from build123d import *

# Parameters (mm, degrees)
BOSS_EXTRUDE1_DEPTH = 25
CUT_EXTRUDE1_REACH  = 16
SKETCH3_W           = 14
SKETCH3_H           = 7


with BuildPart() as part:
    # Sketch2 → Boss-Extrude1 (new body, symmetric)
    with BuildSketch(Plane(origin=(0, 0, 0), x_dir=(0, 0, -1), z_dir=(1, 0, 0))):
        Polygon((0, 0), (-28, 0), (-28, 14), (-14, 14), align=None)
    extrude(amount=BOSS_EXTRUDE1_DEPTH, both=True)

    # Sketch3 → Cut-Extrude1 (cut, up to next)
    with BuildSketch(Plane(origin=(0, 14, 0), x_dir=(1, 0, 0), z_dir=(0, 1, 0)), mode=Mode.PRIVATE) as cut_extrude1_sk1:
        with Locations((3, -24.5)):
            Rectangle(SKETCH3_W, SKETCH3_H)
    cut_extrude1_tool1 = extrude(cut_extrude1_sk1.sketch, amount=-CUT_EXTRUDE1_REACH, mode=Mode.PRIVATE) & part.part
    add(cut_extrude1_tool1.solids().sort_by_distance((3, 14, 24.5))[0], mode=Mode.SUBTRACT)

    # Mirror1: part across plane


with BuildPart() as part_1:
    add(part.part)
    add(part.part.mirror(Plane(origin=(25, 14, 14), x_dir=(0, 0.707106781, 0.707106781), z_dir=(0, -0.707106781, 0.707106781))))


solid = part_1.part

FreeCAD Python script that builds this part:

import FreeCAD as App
import Part
import Sketcher

V = App.Vector
Q = App.Units.Quantity


def add_polygon(sketch, points):
    """Adds a closed chain of lines whose ends are joined by coincident constraints."""
    first, n = sketch.GeometryCount, len(points)
    for a, b in zip(points, points[1:] + points[:1]):
        sketch.addGeometry(Part.LineSegment(App.Vector(*a, 0), App.Vector(*b, 0)), False)
    for i in range(n):
        sketch.addConstraint(Sketcher.Constraint("Coincident", first + i, 2, first + (i + 1) % n, 1))

doc = App.newDocument("Part")
params = doc.addObject("Spreadsheet::Sheet", "Params")
for row, (alias, value) in enumerate([
    ("sketch1_width", "14 mm"),
    ("sketch1_height", "28 mm"),
    ("pad1_length", "50 mm"),
    ("sketch2_width", "14 mm"),
    ("sketch2_height", "7 mm"),
], start=1):
    params.set(f"A{row}", alias)
    params.set(f"B{row}", "=" + value)
    params.setAlias(f"B{row}", alias)

body = doc.addObject("PartDesign::Body", "Body")

sketch1 = doc.addObject("Sketcher::SketchObject", "Sketch")
body.addObject(sketch1)
sketch1.AttachmentSupport = (doc.YZ_Plane, [""])
sketch1.MapMode = "FlatFace"
add_polygon(sketch1, [(0, 28), (0, 0), (14, 14), (14, 28)])
sketch1.addConstraint([
    Sketcher.Constraint("Vertical", 0),
    Sketcher.Constraint("Vertical", 2),
    Sketcher.Constraint("Horizontal", 3),
    Sketcher.Constraint("Coincident", 0, 2, -1, 1),
    Sketcher.Constraint("Equal", 3, 2),
    Sketcher.Constraint("DistanceX", 3, 2, 3, 1, Q("14 mm")),
    Sketcher.Constraint("DistanceY", 0, 2, 0, 1, Q("28 mm")),
])
sketch1.setExpression("Constraints[9]", "Params.sketch1_width")
sketch1.setExpression("Constraints[10]", "Params.sketch1_height")
pad1 = doc.addObject("PartDesign::Pad", "Pad")
body.addObject(pad1)
pad1.Profile = sketch1
pad1.setExpression("Length", "Params.pad1_length")
pad1.Midplane = True

sketch2 = doc.addObject("Sketcher::SketchObject", "Sketch001")
body.addObject(sketch2)
sketch2.AttachmentSupport = (doc.XZ_Plane, [""])
sketch2.MapMode = "FlatFace"
sketch2.AttachmentOffset = App.Placement(V(0, 0, -14), App.Rotation())
add_polygon(sketch2, [(-4, 21), (-4, 28), (10, 28), (10, 21)])
sketch2.addConstraint([
    Sketcher.Constraint("Vertical", 0),
    Sketcher.Constraint("Horizontal", 1),
    Sketcher.Constraint("Vertical", 2),
    Sketcher.Constraint("Horizontal", 3),
    Sketcher.Constraint("DistanceX", 1, 1, 1, 2, Q("14 mm")),
    Sketcher.Constraint("DistanceY", 0, 1, 0, 2, Q("7 mm")),
    Sketcher.Constraint("DistanceX", 0, 2, -1, 1, Q("4 mm")),
    Sketcher.Constraint("DistanceY", -1, 1, 0, 2, Q("28 mm")),
])
sketch2.setExpression("Constraints[8]", "Params.sketch2_width")
sketch2.setExpression("Constraints[9]", "Params.sketch2_height")
pocket1 = doc.addObject("PartDesign::Pocket", "Pocket")
body.addObject(pocket1)
pocket1.Profile = sketch2
pocket1.Type = "UpToFirst"
pocket1.Reversed = True
body2 = doc.addObject("PartDesign::Body", "Body001")
doc.recompute()

body2.BaseFeature = body
doc.recompute()

mirroring = doc.addObject("Part::Mirroring", "Mirroring")
mirroring.Source = body
mirroring.Base = V(25, 14, 14)
mirroring.Normal = V(0, -0.707106781, 0.707106781)
body3 = doc.addObject("PartDesign::Body", "Body002")
body3.BaseFeature = mirroring
boolean = doc.addObject("PartDesign::Boolean", "Boolean")
body2.addObject(boolean)
boolean.Type = "Fuse"
boolean.addObjects([body3])
doc.recompute()
mirroring.Visibility = False

doc.recompute()
